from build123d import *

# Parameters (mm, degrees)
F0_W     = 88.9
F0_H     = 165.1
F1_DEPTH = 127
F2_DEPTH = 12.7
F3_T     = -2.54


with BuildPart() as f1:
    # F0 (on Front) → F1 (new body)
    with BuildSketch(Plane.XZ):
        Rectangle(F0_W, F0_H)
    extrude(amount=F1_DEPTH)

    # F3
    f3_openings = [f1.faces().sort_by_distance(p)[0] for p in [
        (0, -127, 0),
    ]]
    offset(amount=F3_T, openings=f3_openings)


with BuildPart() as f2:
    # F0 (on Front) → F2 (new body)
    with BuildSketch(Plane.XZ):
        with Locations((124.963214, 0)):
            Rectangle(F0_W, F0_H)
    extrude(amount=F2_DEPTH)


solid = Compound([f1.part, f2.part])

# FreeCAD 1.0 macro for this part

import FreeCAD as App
import Part
import Sketcher

V = App.Vector
Q = App.Units.Quantity


def faces_at(feature, points):
    """Names of the faces that lie closest to the given points."""
    faces = feature.Shape.Faces
    near = lambda p: min(range(len(faces)), key=lambda i: faces[i].distToShape(Part.Vertex(*p))[0])
    return sorted({f"Face{near(p) + 1}" for p in points})


def add_polygon(sketch, points):
    """Adds a closed chain of lines whose ends are joined by coincident constraints."""
    first, n = sketch.GeometryCount, len(points)
    for a, b in zip(points, points[1:] + points[:1]):
        sketch.addGeometry(Part.LineSegment(App.Vector(*a, 0), App.Vector(*b, 0)), False)
    for i in range(n):
        sketch.addConstraint(Sketcher.Constraint("Coincident", first + i, 2, first + (i + 1) % n, 1))

doc = App.newDocument("Part")
params = doc.addObject("Spreadsheet::Sheet", "Params")
for row, (alias, value) in enumerate([
    ("sketch1_width", "3.5 in"),
    ("sketch1_height", "6.5 in"),
    ("pad1_length", "5 in"),
    ("thickness_wall", "0.1 in"),
    ("sketch2_width", "3.5 in"),
    ("sketch2_height", "6.5 in"),
    ("pad2_length", "0.5 in"),
], start=1):
    params.set(f"A{row}", alias)
    params.set(f"B{row}", "=" + value)
    params.setAlias(f"B{row}", alias)

body = doc.addObject("PartDesign::Body", "Body")

# Sketch on XZ plane
sketch1 = body.newObject("Sketcher::SketchObject", "Sketch")
sketch1.AttachmentSupport = (doc.getObject("XZ_Plane"), [""])
sketch1.MapMode = "FlatFace"
add_polygon(sketch1, [(-44, 83), (-44, -83), (44, -83), (44, 83)])  # lines 0-3
sketch1.addConstraint([
    Sketcher.Constraint("Vertical", 0),
    Sketcher.Constraint("Horizontal", 1),
    Sketcher.Constraint("Vertical", 2),
    Sketcher.Constraint("Horizontal", 3),
    Sketcher.Constraint("Symmetric", 0, 2, 2, 2, -1, 1),
    Sketcher.Constraint("DistanceX", 1, 1, 1, 2, Q("3.5 in")),
    Sketcher.Constraint("DistanceY", 0, 2, 0, 1, Q("6.5 in")),
])
sketch1.setExpression("Constraints[9]", "Params.sketch1_width")
sketch1.setExpression("Constraints[10]", "Params.sketch1_height")
pad1 = body.newObject("PartDesign::Pad", "Pad")
pad1.Profile = sketch1
pad1.setExpression("Length", "Params.pad1_length")
doc.recompute()

thickness = body.newObject("PartDesign::Thickness", "Thickness")
thickness.Base = (pad1, faces_at(pad1, [(0, -127, 0)]))
thickness.setExpression("Value", "Params.thickness_wall")
thickness.Reversed = True
thickness.Join = "Arc"
body2 = doc.addObject("PartDesign::Body", "Body001")

# Sketch on XZ plane
sketch2 = body2.newObject("Sketcher::SketchObject", "Sketch001")
sketch2.AttachmentSupport = (doc.getObject("XZ_Plane001"), [""])
sketch2.MapMode = "FlatFace"
add_polygon(sketch2, [(81, 83), (81, -83), (169, -83), (169, 83)])  # lines 0-3
sketch2.addConstraint([
    Sketcher.Constraint("Vertical", 0),
    Sketcher.Constraint("Horizontal", 1),
    Sketcher.Constraint("Vertical", 2),
    Sketcher.Constraint("Horizontal", 3),
    Sketcher.Constraint("DistanceX", 1, 1, 1, 2, Q("3.5 in")),
    Sketcher.Constraint("DistanceY", 0, 2, 0, 1, Q("6.5 in")),
    Sketcher.Constraint("DistanceY", 0, 2, -1, 1, Q("3.25 in")),
    Sketcher.Constraint("DistanceX", -1, 1, 0, 2, 80.513214),
])
sketch2.setExpression("Constraints[8]", "Params.sketch2_width")
sketch2.setExpression("Constraints[9]", "Params.sketch2_height")
pad2 = body2.newObject("PartDesign::Pad", "Pad001")
pad2.Profile = sketch2
pad2.setExpression("Length", "Params.pad2_length")

doc.recompute()
